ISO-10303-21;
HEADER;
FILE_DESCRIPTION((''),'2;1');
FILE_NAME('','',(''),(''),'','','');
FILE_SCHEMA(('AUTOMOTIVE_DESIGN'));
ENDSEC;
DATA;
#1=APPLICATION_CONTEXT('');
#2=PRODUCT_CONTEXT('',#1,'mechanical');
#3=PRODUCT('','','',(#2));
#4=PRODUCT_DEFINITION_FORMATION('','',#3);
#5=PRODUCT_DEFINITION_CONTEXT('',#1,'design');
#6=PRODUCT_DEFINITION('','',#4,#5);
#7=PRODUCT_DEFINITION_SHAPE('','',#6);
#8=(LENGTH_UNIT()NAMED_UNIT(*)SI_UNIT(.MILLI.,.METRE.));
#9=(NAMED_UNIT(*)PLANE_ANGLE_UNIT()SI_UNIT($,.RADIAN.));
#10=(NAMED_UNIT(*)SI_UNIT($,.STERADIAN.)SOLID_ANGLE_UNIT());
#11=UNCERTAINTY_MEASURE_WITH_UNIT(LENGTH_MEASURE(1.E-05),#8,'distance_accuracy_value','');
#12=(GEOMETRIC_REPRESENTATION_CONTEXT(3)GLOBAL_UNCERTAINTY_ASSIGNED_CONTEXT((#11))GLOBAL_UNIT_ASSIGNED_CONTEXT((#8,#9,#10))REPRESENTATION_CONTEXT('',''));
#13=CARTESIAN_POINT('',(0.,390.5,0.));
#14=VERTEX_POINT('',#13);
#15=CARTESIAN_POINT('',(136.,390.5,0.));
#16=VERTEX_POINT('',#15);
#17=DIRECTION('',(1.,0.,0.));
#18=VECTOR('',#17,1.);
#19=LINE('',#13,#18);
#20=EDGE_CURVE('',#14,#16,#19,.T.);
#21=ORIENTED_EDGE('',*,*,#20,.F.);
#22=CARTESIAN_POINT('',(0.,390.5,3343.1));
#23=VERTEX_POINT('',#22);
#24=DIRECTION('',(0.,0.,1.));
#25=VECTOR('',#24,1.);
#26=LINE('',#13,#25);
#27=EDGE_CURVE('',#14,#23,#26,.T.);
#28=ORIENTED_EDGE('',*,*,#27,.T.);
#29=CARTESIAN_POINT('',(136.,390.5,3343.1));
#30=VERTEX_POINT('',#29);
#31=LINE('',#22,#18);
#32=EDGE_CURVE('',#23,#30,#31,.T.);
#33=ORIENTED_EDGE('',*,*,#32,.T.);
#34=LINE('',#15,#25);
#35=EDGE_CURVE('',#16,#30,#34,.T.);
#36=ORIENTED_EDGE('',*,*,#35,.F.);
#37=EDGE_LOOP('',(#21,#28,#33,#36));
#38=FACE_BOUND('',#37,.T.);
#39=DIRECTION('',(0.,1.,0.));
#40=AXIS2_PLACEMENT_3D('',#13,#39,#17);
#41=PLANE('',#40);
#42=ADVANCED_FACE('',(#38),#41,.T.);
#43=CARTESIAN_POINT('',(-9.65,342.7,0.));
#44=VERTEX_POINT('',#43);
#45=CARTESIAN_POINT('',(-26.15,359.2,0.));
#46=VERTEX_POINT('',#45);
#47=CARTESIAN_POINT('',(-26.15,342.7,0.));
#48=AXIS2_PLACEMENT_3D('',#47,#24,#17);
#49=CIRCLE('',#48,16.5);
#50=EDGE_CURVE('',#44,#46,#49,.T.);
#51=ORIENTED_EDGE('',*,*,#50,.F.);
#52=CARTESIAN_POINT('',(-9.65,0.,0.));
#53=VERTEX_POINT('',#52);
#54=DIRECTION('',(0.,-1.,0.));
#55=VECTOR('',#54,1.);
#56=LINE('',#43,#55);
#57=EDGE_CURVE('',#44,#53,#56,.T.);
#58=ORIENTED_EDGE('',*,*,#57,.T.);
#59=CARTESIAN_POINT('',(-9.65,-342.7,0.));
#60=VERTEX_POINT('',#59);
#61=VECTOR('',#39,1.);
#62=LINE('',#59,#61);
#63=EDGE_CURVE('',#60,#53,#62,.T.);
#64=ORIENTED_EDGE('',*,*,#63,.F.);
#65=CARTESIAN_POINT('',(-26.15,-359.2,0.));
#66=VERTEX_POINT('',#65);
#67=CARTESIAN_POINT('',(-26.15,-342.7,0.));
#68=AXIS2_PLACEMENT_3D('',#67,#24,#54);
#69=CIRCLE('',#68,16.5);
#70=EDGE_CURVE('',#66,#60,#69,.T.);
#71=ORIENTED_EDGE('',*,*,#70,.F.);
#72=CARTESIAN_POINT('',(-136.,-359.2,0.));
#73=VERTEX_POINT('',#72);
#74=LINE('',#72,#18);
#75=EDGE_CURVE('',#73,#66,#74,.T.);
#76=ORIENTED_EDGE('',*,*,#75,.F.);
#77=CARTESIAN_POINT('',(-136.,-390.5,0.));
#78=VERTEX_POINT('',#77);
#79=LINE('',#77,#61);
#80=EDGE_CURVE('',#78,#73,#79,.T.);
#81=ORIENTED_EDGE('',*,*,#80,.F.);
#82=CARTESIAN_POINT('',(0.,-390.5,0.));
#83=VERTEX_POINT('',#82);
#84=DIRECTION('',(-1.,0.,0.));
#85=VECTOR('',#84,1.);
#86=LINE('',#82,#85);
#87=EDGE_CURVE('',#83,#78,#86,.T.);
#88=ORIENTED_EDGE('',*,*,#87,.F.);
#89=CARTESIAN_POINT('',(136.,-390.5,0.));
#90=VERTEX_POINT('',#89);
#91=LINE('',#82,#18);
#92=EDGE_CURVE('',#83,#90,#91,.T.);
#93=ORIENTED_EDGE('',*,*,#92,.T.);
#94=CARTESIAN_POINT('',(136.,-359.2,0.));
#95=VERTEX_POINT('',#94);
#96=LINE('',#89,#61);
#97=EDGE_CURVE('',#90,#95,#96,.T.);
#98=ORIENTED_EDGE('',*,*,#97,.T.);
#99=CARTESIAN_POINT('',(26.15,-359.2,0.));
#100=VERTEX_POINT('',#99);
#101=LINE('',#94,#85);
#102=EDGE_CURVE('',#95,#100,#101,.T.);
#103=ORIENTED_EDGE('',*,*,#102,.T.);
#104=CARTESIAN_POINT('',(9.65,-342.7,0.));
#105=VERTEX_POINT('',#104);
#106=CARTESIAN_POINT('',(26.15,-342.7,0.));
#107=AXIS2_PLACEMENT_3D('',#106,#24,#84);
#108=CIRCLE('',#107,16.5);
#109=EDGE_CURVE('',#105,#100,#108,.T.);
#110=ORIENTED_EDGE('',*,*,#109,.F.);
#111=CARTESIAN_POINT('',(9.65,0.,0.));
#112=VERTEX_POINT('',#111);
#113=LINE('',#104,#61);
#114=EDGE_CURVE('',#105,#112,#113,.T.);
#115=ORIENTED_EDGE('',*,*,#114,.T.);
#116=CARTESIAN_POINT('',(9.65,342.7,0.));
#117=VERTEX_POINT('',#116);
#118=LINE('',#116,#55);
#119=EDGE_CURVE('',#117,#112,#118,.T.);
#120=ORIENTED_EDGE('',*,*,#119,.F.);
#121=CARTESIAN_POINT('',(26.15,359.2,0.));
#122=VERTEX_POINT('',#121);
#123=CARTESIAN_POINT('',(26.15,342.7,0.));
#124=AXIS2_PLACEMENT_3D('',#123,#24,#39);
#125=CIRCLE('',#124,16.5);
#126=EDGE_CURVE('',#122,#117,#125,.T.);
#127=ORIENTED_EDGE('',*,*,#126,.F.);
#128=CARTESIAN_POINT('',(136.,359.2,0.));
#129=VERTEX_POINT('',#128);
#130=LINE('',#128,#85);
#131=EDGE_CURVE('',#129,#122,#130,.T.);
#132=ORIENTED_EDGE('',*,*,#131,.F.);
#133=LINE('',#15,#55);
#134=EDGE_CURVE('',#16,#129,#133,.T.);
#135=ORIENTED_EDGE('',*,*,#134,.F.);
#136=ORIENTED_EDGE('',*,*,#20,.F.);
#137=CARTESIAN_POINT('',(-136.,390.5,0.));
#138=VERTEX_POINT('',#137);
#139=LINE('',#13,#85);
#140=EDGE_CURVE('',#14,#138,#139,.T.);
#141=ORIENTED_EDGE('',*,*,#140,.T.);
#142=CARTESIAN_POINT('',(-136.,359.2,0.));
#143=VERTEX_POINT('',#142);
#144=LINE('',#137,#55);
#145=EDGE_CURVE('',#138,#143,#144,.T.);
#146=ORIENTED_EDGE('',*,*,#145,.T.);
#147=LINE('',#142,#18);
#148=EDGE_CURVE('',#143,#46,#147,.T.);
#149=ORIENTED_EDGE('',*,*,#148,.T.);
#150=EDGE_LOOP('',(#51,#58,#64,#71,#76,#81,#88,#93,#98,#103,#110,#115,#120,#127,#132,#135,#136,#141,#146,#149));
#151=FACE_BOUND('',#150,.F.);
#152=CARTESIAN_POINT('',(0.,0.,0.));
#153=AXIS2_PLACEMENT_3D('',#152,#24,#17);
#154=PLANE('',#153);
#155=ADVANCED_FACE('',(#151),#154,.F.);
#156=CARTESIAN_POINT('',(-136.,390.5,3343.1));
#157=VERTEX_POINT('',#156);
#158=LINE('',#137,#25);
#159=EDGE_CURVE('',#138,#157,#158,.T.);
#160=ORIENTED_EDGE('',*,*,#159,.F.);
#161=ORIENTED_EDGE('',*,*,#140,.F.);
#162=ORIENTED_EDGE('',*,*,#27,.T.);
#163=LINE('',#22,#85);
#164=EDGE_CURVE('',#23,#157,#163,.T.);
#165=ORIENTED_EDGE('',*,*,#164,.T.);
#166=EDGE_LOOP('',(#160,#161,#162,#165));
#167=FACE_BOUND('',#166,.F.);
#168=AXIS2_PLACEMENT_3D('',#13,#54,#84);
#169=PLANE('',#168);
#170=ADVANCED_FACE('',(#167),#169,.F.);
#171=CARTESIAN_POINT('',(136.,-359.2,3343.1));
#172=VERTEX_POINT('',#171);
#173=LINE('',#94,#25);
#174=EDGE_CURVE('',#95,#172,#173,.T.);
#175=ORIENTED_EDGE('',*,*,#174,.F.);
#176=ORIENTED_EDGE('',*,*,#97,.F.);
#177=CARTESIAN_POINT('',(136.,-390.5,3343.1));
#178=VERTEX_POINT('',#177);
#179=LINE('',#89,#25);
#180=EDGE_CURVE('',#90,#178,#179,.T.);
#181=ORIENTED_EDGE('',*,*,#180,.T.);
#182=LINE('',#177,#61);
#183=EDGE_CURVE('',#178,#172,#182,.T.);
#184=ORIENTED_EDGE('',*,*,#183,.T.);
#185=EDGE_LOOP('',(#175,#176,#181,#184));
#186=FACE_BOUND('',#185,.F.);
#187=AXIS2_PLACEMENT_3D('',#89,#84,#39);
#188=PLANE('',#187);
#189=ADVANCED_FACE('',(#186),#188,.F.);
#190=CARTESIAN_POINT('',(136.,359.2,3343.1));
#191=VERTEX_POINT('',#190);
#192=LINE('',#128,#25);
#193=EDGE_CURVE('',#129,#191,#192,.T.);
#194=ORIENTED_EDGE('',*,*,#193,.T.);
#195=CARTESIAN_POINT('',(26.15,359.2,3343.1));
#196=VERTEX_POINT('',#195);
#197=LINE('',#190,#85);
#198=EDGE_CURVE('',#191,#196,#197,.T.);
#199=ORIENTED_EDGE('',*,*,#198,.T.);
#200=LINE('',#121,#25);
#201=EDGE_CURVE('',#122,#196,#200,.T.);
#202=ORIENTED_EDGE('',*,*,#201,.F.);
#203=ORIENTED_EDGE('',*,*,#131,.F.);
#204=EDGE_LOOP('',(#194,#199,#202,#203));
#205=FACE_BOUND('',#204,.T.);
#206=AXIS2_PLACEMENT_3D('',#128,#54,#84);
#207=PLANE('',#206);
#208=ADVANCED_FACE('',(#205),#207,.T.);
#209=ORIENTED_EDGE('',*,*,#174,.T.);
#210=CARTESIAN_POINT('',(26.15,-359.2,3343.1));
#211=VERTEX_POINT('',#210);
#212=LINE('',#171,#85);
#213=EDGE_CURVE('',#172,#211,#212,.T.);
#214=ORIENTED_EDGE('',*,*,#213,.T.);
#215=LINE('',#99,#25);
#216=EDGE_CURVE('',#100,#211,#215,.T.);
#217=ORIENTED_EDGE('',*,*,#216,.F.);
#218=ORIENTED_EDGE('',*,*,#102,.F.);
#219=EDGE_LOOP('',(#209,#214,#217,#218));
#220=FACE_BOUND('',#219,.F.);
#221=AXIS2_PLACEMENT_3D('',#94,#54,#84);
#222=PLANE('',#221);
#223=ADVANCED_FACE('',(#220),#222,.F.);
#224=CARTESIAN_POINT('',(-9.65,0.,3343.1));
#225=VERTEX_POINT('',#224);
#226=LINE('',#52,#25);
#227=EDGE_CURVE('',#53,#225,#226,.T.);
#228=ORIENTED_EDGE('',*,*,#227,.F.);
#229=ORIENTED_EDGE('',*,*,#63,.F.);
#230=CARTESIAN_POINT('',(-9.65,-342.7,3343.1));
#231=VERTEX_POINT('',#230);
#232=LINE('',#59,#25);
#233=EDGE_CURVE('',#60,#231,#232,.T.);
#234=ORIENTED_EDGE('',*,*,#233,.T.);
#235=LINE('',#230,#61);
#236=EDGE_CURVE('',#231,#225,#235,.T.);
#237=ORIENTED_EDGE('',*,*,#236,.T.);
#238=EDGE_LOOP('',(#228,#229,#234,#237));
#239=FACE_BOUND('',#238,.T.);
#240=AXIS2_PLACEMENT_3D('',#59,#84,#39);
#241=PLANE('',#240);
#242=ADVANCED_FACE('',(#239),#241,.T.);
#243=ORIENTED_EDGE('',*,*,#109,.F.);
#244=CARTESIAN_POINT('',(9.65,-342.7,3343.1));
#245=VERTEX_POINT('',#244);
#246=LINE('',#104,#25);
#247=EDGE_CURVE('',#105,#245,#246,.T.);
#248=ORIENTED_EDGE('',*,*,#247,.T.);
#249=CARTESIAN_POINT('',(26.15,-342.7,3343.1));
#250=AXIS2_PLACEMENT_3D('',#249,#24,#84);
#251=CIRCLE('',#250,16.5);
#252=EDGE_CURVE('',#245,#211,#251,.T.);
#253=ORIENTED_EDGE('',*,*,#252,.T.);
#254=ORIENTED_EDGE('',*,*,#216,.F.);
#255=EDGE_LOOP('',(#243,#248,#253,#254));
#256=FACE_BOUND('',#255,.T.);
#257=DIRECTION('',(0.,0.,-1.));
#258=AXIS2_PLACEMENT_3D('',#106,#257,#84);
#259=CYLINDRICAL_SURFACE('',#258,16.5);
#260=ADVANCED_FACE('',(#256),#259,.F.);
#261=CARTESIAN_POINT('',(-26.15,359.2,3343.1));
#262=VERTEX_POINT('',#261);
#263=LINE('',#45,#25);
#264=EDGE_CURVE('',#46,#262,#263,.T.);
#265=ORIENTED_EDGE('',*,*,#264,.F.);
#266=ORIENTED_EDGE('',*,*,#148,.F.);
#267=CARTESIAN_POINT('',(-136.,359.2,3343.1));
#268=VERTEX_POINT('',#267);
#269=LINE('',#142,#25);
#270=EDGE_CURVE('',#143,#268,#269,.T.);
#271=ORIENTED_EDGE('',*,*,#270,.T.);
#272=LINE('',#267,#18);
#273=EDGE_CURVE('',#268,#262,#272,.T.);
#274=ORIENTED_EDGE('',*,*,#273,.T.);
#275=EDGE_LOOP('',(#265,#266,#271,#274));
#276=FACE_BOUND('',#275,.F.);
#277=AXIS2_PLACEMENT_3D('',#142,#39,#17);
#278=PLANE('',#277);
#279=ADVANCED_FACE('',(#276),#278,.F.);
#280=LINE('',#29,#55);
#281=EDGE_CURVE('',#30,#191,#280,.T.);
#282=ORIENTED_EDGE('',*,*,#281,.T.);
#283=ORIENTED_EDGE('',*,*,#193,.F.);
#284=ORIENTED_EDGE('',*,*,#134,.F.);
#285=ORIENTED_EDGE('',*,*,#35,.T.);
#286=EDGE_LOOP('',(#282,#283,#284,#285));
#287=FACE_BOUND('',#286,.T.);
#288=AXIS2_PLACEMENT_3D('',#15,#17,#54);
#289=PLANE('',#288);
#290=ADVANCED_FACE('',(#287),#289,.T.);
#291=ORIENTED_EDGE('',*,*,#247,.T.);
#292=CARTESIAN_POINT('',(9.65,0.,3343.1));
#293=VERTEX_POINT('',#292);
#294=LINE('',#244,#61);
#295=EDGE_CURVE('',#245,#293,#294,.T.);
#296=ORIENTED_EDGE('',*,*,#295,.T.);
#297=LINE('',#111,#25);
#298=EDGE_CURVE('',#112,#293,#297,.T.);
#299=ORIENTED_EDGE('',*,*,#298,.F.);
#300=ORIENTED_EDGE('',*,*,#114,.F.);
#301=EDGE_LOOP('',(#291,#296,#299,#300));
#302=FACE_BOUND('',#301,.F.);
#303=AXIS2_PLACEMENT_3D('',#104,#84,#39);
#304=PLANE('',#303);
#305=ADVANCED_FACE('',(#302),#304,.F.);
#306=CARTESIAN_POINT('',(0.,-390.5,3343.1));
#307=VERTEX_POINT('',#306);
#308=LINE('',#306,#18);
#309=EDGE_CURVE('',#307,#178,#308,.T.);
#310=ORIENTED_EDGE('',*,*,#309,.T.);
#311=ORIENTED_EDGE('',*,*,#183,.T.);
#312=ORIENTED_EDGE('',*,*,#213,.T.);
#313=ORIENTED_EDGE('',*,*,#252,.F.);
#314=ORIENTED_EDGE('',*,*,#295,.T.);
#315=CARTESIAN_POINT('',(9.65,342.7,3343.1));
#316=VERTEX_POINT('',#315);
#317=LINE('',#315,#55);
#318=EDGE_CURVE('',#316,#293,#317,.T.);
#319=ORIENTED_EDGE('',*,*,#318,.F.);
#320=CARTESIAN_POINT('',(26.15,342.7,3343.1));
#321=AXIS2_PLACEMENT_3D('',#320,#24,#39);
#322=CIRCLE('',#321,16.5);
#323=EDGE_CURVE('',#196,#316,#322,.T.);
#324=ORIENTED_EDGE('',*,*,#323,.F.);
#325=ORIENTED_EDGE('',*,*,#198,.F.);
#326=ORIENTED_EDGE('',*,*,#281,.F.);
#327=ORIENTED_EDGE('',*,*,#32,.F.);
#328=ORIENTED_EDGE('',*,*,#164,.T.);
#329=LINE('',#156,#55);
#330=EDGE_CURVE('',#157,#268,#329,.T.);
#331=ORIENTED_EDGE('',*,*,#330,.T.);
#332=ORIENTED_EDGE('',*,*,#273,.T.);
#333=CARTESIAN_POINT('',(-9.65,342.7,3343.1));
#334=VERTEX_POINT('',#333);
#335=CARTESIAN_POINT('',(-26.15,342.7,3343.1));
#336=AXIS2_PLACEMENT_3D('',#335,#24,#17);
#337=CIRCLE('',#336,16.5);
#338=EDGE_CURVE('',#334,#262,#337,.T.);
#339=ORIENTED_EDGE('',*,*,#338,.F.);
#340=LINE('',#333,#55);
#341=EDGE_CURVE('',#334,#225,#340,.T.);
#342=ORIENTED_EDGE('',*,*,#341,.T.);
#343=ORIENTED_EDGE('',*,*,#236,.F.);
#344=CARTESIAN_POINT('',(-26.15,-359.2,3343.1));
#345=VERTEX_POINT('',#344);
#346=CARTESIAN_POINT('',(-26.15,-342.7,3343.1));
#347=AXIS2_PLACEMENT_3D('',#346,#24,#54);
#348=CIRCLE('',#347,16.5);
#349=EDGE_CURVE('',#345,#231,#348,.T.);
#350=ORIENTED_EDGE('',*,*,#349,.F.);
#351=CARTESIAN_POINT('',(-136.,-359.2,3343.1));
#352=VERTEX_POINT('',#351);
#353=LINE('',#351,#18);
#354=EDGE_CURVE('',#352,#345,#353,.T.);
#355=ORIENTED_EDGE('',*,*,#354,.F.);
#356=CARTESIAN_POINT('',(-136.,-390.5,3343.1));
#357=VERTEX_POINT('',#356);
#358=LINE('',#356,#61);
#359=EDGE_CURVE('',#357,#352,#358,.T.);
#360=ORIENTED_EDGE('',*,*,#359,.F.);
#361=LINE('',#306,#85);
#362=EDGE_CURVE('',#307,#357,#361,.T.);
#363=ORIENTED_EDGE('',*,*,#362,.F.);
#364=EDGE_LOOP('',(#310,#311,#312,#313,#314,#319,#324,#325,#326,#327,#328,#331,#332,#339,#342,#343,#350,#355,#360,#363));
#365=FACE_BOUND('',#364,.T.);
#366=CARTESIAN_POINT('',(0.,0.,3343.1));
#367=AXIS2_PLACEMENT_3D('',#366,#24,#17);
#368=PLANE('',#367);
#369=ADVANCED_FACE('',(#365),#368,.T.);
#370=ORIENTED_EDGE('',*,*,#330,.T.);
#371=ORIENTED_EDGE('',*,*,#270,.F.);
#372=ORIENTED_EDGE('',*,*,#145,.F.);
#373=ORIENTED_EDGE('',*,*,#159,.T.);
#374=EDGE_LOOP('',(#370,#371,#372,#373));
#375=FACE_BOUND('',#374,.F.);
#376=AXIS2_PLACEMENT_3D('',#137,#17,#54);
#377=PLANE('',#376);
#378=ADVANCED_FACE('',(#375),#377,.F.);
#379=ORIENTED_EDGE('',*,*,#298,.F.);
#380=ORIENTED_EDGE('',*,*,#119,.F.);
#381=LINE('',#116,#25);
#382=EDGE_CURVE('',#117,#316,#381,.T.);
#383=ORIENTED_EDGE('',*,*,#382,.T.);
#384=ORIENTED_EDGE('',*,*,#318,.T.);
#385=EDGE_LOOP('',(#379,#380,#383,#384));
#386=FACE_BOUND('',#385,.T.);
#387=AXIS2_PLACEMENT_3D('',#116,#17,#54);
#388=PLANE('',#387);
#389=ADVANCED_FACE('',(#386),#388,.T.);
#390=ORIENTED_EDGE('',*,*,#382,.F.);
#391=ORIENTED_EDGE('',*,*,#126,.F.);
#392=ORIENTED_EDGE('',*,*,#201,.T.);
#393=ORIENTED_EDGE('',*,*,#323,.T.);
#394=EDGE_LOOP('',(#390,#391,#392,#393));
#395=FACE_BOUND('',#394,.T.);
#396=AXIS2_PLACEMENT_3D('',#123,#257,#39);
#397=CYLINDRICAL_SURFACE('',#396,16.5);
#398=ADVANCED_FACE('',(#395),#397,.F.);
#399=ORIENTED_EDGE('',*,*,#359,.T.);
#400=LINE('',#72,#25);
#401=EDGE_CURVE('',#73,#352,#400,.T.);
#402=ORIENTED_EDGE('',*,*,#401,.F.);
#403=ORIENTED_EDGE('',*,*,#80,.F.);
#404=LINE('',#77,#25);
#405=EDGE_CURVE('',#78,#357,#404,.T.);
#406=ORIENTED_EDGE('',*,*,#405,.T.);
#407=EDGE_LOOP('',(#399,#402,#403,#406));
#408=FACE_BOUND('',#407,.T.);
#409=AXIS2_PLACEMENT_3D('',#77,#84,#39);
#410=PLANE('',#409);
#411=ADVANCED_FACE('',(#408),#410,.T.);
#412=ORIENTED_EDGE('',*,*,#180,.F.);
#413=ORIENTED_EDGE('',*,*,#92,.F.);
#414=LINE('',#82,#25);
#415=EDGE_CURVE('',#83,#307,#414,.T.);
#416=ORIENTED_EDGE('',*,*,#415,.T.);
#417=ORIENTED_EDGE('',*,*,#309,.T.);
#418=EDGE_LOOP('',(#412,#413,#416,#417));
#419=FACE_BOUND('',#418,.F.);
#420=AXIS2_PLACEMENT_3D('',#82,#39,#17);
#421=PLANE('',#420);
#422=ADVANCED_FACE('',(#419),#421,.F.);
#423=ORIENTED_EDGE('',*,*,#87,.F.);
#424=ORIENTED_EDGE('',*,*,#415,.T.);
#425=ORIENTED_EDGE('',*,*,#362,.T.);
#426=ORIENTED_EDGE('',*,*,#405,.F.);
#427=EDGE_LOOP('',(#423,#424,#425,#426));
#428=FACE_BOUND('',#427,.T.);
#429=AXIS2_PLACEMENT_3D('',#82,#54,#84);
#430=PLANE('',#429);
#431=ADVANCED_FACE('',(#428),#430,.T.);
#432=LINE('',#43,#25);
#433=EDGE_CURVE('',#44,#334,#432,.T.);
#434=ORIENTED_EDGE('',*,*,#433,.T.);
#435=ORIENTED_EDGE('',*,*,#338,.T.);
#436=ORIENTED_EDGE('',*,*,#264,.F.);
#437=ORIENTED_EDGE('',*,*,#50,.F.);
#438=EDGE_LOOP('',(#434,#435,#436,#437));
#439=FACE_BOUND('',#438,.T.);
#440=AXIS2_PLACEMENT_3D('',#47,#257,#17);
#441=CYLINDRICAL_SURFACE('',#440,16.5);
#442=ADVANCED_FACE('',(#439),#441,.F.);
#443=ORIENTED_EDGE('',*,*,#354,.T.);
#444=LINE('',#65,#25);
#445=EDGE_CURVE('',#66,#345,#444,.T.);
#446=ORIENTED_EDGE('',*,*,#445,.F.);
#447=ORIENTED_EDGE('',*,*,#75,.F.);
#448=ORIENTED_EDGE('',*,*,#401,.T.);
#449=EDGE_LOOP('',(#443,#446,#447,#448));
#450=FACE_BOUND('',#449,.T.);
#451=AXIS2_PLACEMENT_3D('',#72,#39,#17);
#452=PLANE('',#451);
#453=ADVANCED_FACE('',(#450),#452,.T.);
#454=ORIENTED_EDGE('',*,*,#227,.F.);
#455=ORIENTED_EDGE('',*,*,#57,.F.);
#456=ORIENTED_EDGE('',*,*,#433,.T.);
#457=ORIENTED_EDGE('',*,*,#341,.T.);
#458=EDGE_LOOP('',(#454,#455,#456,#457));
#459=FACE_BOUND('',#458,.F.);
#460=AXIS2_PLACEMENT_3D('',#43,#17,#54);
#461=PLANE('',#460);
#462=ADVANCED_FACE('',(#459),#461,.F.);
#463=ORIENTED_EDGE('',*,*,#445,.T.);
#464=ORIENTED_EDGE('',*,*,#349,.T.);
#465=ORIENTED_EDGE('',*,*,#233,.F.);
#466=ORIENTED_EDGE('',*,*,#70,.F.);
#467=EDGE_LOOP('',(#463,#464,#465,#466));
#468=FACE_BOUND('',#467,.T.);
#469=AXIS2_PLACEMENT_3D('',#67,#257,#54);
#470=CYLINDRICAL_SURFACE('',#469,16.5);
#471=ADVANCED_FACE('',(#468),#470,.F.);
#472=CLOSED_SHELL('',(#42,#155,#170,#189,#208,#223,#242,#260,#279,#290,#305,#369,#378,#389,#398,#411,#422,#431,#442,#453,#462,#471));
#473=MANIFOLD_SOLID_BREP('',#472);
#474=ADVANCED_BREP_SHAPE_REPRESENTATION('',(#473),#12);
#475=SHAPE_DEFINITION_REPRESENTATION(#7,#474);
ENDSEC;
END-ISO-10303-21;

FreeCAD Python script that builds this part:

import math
import FreeCAD as App
import Part
import Sketcher

V = App.Vector
Q = App.Units.Quantity

doc = App.newDocument("Part")
params = doc.addObject("Spreadsheet::Sheet", "Params")
for row, (alias, value) in enumerate([
    ("sketch1_radius", "16.5 mm"),
    ("sketch1_height", "31.3 mm"),
    ("pad1_length", "3343.1 mm"),
], start=1):
    params.set(f"A{row}", alias)
    params.set(f"B{row}", "=" + value)
    params.setAlias(f"B{row}", alias)

body = doc.addObject("PartDesign::Body", "Body")

# Sketch on XY plane
sketch1 = body.newObject("Sketcher::SketchObject", "Sketch")
sketch1.AttachmentSupport = (doc.getObject("XY_Plane"), [""])
sketch1.MapMode = "FlatFace"
sketch1.addGeometry(Part.LineSegment(V(-136, -359, 0), V(-136, -390, 0)), False)
sketch1.addGeometry(Part.LineSegment(V(-136, -390, 0), V(136, -390, 0)), False)
sketch1.addGeometry(Part.LineSegment(V(136, -390, 0), V(136, -359, 0)), False)
sketch1.addGeometry(Part.LineSegment(V(136, -359, 0), V(26, -359, 0)), False)
sketch1.addGeometry(Part.ArcOfCircle(Part.Circle(V(26, -343, 0), V(0, 0, 1), 16), math.radians(180), math.radians(270)), False)
sketch1.addGeometry(Part.LineSegment(V(10, -343, 0), V(10, 343, 0)), False)
sketch1.addGeometry(Part.ArcOfCircle(Part.Circle(V(26, 343, 0), V(0, 0, 1), 16), math.radians(90), math.radians(180)), False)
sketch1.addGeometry(Part.LineSegment(V(26, 359, 0), V(136, 359, 0)), False)
sketch1.addGeometry(Part.LineSegment(V(136, 359, 0), V(136, 390, 0)), False)
sketch1.addGeometry(Part.LineSegment(V(136, 390, 0), V(-136, 390, 0)), False)
sketch1.addGeometry(Part.LineSegment(V(-136, 390, 0), V(-136, 359, 0)), False)
sketch1.addGeometry(Part.LineSegment(V(-136, 359, 0), V(-26, 359, 0)), False)
sketch1.addGeometry(Part.ArcOfCircle(Part.Circle(V(-26, 343, 0), V(0, 0, 1), 16), math.radians(0), math.radians(90)), False)
sketch1.addGeometry(Part.LineSegment(V(-10, 343, 0), V(-10, -343, 0)), False)
sketch1.addGeometry(Part.ArcOfCircle(Part.Circle(V(-26, -343, 0), V(0, 0, 1), 16), math.radians(-90), math.radians(0)), False)
sketch1.addGeometry(Part.LineSegment(V(-26, -359, 0), V(-136, -359, 0)), False)
sketch1.addConstraint(Sketcher.Constraint("Coincident", 0, 2, 1, 1))
sketch1.addConstraint(Sketcher.Constraint("Coincident", 1, 2, 2, 1))
sketch1.addConstraint(Sketcher.Constraint("Coincident", 2, 2, 3, 1))
sketch1.addConstraint(Sketcher.Constraint("Tangent", 3, 2, 4, 2))
sketch1.addConstraint(Sketcher.Constraint("Tangent", 4, 1, 5, 1))
sketch1.addConstraint(Sketcher.Constraint("Tangent", 5, 2, 6, 2))
sketch1.addConstraint(Sketcher.Constraint("Tangent", 6, 1, 7, 1))
sketch1.addConstraint(Sketcher.Constraint("Coincident", 7, 2, 8, 1))
sketch1.addConstraint(Sketcher.Constraint("Coincident", 8, 2, 9, 1))
sketch1.addConstraint(Sketcher.Constraint("Coincident", 9, 2, 10, 1))
sketch1.addConstraint(Sketcher.Constraint("Coincident", 10, 2, 11, 1))
sketch1.addConstraint(Sketcher.Constraint("Tangent", 11, 2, 12, 2))
sketch1.addConstraint(Sketcher.Constraint("Tangent", 12, 1, 13, 1))
sketch1.addConstraint(Sketcher.Constraint("Tangent", 13, 2, 14, 2))
sketch1.addConstraint(Sketcher.Constraint("Tangent", 14, 1, 15, 1))
sketch1.addConstraint(Sketcher.Constraint("Coincident", 15, 2, 0, 1))
sketch1.addConstraint(Sketcher.Constraint("Vertical", 0))
sketch1.addConstraint(Sketcher.Constraint("Horizontal", 1))
sketch1.addConstraint(Sketcher.Constraint("Vertical", 2))
sketch1.addConstraint(Sketcher.Constraint("Horizontal", 3))
sketch1.addConstraint(Sketcher.Constraint("Vertical", 5))
sketch1.addConstraint(Sketcher.Constraint("Horizontal", 7))
sketch1.addConstraint(Sketcher.Constraint("Vertical", 8))
sketch1.addConstraint(Sketcher.Constraint("Horizontal", 9))
sketch1.addConstraint(Sketcher.Constraint("Vertical", 10))
sketch1.addConstraint(Sketcher.Constraint("Horizontal", 11))
sketch1.addConstraint(Sketcher.Constraint("Vertical", 13))
sketch1.addConstraint(Sketcher.Constraint("Horizontal", 15))
sketch1.addConstraint(Sketcher.Constraint("Equal", 4, 6))
sketch1.addConstraint(Sketcher.Constraint("Equal", 6, 12))
sketch1.addConstraint(Sketcher.Constraint("Equal", 12, 14))
sketch1.addConstraint(Sketcher.Constraint("Symmetric", 4, 3, 12, 3, -1, 1))
sketch1.addConstraint(Sketcher.Constraint("Symmetric", 0, 2, 8, 2, -1, 1))
sketch1.addConstraint(Sketcher.Constraint("Symmetric", 7, 2, 10, 2, -2))
sketch1.addConstraint(Sketcher.Constraint("Symmetric", 2, 2, 15, 2, -2))
sketch1.addConstraint(Sketcher.Constraint("Radius", 4, Q("16.5 mm")))
sketch1.addConstraint(Sketcher.Constraint("DistanceY", 0, 2, 0, 1, Q("31.3 mm")))
sketch1.addConstraint(Sketcher.Constraint("DistanceX", 0, 2, -1, 1, Q("136 mm")))
sketch1.addConstraint(Sketcher.Constraint("DistanceY", 0, 2, -1, 1, Q("390.5 mm")))
sketch1.addConstraint(Sketcher.Constraint("DistanceX", -1, 1, 4, 1, Q("9.65 mm")))
sketch1.setExpression("Constraints[35]", "Params.sketch1_radius")
sketch1.setExpression("Constraints[36]", "Params.sketch1_height")
pad1 = body.newObject("PartDesign::Pad", "Pad")
pad1.Profile = sketch1
pad1.setExpression("Length", "Params.pad1_length")

doc.recompute()
